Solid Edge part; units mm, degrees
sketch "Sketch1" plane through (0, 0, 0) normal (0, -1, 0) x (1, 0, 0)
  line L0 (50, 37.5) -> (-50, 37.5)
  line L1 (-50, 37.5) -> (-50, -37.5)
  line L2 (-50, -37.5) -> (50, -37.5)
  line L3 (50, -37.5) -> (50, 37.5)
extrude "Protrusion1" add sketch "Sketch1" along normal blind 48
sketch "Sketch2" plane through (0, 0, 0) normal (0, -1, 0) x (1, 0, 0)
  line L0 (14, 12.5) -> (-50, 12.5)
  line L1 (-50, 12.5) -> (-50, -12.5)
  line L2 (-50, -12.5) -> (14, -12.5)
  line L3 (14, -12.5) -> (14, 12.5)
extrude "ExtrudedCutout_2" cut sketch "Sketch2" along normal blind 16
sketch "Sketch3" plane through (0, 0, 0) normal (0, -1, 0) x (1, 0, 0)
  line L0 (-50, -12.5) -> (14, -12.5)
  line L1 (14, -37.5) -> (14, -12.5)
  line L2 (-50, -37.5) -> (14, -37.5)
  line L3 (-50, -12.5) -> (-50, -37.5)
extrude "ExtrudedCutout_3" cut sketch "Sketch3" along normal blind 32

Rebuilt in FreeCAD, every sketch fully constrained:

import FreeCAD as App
import Part
import Sketcher

V = App.Vector


def add_polygon(sketch, points):
    """Adds a closed chain of lines whose ends are joined by coincident constraints."""
    first, n = sketch.GeometryCount, len(points)
    for a, b in zip(points, points[1:] + points[:1]):
        sketch.addGeometry(Part.LineSegment(App.Vector(*a, 0), App.Vector(*b, 0)), False)
    for i in range(n):
        sketch.addConstraint(Sketcher.Constraint("Coincident", first + i, 2, first + (i + 1) % n, 1))

doc = App.newDocument("Part")
body = doc.addObject("PartDesign::Body", "Body")

sketch1 = body.newObject("Sketcher::SketchObject", "Sketch")
sketch1.AttachmentSupport = (doc.getObject("XZ_Plane"), [""])
sketch1.MapMode = "FlatFace"
add_polygon(sketch1, [(50, -38), (50, 38), (-50, 38), (-50, -38)])
sketch1.addConstraint([
    Sketcher.Constraint("Vertical", 0),
    Sketcher.Constraint("Horizontal", 1),
    Sketcher.Constraint("Vertical", 2),
    Sketcher.Constraint("Horizontal", 3),
    Sketcher.Constraint("Symmetric", 0, 2, 2, 2, -1, 1),
    Sketcher.Constraint("DistanceX", 1, 2, 1, 1, 100.0),
    Sketcher.Constraint("DistanceY", 0, 1, 0, 2, 75.0),
])
pad1 = body.newObject("PartDesign::Pad", "Pad")
pad1.Profile = sketch1
pad1.Length = 48

sketch2 = body.newObject("Sketcher::SketchObject", "Sketch001")
sketch2.AttachmentSupport = (doc.getObject("XZ_Plane"), [""])
sketch2.MapMode = "FlatFace"
add_polygon(sketch2, [(14, -12), (14, 12), (-50, 12), (-50, -12)])
sketch2.addConstraint([
    Sketcher.Constraint("Vertical", 0),
    Sketcher.Constraint("Horizontal", 1),
    Sketcher.Constraint("Vertical", 2),
    Sketcher.Constraint("Horizontal", 3),
    Sketcher.Constraint("DistanceX", 1, 2, 1, 1, 64.0),
    Sketcher.Constraint("DistanceY", 0, 1, 0, 2, 25.0),
    Sketcher.Constraint("DistanceX", -1, 1, 0, 2, 14.0),
    Sketcher.Constraint("DistanceY", -1, 1, 0, 2, 12.5),
])
pocket1 = body.newObject("PartDesign::Pocket", "Pocket")
pocket1.Profile = sketch2
pocket1.Length = 16
pocket1.Reversed = True

sketch3 = body.newObject("Sketcher::SketchObject", "Sketch002")
sketch3.AttachmentSupport = (doc.getObject("XZ_Plane"), [""])
sketch3.MapMode = "FlatFace"
add_polygon(sketch3, [(14, -12), (-50, -12), (-50, -38), (14, -38)])
sketch3.addConstraint([
    Sketcher.Constraint("Horizontal", 0),
    Sketcher.Constraint("Vertical", 1),
    Sketcher.Constraint("Horizontal", 2),
    Sketcher.Constraint("Vertical", 3),
    Sketcher.Constraint("DistanceX", 0, 2, 0, 1, 64.0),
    Sketcher.Constraint("DistanceY", 1, 2, 1, 1, 25.0),
    Sketcher.Constraint("DistanceX", 0, 2, -1, 1, 50.0),
    Sketcher.Constraint("DistanceY", 0, 2, -1, 1, 12.5),
])
pocket2 = body.newObject("PartDesign::Pocket", "Pocket001")
pocket2.Profile = sketch3
pocket2.Length = 32
pocket2.Reversed = True

doc.recompute()
